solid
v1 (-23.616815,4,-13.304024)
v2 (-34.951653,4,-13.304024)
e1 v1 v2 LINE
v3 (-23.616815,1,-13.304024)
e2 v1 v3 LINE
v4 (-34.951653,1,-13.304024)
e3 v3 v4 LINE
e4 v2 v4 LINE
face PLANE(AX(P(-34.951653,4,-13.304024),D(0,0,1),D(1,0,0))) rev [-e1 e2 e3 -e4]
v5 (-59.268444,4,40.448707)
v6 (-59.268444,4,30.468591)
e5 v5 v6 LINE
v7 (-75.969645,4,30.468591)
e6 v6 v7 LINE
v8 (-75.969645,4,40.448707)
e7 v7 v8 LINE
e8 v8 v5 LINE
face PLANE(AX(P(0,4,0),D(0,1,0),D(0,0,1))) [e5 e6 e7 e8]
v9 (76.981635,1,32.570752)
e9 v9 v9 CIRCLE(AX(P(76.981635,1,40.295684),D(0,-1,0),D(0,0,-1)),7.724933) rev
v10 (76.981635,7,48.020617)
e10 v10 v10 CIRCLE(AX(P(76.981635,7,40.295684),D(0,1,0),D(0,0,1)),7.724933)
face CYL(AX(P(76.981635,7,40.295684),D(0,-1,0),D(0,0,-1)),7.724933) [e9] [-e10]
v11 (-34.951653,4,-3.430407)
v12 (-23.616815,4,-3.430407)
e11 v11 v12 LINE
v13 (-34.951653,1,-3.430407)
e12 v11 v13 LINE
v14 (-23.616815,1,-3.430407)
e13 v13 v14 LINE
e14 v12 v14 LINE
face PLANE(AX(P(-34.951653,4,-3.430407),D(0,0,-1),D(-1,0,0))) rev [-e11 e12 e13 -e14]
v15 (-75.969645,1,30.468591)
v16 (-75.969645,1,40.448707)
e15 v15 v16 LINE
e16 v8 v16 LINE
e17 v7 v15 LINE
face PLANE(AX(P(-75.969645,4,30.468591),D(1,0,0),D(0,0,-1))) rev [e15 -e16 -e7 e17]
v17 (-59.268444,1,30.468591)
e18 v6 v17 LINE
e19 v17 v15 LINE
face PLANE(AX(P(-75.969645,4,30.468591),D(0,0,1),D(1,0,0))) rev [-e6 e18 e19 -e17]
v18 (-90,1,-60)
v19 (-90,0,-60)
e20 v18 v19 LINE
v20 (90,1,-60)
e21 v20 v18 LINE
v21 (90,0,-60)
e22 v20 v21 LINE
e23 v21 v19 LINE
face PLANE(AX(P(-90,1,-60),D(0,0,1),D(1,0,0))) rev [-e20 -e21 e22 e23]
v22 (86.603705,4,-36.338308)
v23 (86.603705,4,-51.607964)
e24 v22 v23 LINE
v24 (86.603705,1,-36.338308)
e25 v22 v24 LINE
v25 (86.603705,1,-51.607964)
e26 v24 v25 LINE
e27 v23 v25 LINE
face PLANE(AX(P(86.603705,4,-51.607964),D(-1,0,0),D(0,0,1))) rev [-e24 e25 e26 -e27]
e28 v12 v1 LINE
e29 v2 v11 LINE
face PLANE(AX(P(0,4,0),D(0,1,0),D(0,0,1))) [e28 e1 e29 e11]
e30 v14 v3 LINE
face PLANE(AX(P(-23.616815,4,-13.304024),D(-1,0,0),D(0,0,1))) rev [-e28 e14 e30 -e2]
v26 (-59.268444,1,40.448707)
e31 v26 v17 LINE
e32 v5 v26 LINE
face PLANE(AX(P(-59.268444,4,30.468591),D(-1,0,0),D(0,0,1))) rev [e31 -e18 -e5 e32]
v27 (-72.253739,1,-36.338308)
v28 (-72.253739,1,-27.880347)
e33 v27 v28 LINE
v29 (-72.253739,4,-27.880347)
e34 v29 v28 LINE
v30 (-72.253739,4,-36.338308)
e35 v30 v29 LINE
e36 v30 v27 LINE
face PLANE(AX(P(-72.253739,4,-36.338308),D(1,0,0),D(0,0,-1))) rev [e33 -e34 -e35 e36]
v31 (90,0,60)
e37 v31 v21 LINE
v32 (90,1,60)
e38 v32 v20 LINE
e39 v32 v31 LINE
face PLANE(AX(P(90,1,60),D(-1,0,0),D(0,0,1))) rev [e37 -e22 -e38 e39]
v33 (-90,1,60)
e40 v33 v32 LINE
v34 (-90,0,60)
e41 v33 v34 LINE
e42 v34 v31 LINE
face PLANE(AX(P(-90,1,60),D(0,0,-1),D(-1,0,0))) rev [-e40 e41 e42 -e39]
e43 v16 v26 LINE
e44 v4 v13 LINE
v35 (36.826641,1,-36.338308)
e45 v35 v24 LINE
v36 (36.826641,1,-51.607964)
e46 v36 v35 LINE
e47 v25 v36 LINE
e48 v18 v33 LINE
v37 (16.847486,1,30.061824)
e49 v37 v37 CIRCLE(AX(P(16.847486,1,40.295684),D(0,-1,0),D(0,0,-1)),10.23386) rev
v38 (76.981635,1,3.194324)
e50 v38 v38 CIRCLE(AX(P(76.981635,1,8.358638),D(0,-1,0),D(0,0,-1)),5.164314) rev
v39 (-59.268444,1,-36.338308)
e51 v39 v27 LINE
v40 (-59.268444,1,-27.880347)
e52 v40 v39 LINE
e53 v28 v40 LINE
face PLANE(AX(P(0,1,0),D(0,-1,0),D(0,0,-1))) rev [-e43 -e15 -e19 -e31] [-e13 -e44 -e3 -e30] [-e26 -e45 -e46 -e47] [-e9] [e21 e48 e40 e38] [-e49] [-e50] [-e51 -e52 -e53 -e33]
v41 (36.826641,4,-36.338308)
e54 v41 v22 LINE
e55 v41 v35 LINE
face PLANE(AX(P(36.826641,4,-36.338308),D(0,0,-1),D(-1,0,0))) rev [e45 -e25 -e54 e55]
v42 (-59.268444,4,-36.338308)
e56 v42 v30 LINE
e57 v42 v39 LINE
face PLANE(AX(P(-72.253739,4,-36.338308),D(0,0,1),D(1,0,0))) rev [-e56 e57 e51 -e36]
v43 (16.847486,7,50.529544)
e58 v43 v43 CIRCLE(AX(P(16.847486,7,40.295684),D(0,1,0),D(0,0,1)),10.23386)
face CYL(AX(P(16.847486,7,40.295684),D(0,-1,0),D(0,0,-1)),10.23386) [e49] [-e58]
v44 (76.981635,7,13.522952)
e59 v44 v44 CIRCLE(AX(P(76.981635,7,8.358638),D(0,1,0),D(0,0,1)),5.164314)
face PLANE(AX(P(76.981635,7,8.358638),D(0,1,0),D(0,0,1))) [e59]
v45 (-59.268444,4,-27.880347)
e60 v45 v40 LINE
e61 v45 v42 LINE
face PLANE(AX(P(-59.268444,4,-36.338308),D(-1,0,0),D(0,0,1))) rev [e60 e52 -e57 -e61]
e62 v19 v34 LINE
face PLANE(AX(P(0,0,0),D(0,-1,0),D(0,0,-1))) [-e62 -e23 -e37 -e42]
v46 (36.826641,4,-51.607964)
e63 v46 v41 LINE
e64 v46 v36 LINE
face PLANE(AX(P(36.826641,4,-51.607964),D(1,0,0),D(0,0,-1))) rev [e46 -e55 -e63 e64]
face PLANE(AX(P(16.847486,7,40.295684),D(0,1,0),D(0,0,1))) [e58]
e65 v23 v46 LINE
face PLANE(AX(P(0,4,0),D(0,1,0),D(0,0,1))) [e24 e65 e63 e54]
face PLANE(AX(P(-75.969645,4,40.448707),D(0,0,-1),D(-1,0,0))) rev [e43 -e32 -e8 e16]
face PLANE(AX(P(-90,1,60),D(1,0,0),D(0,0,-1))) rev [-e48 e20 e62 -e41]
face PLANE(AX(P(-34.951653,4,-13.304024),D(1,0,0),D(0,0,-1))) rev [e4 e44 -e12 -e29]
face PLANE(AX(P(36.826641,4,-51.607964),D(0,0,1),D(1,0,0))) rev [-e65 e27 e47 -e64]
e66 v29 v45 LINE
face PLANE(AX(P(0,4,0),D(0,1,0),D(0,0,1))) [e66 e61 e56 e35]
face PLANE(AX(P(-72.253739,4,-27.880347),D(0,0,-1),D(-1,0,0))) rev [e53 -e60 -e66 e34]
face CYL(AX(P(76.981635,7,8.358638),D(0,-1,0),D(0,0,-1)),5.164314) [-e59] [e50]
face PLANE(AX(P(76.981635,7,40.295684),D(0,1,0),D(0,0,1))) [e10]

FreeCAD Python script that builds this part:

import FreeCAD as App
import Part
import Sketcher

V = App.Vector
Q = App.Units.Quantity


def add_polygon(sketch, points):
    """Adds a closed chain of lines whose ends are joined by coincident constraints."""
    first, n = sketch.GeometryCount, len(points)
    for a, b in zip(points, points[1:] + points[:1]):
        sketch.addGeometry(Part.LineSegment(App.Vector(*a, 0), App.Vector(*b, 0)), False)
    for i in range(n):
        sketch.addConstraint(Sketcher.Constraint("Coincident", first + i, 2, first + (i + 1) % n, 1))

doc = App.newDocument("Part")
params = doc.addObject("Spreadsheet::Sheet", "Params")
for row, (alias, value) in enumerate([
    ("sketch1_width", "180 mm"),
    ("sketch1_height", "120 mm"),
    ("pad1_length", "1 mm"),
    ("pad2_length", "3 mm"),
    ("pad3_length", "6 mm"),
], start=1):
    params.set(f"A{row}", alias)
    params.set(f"B{row}", "=" + value)
    params.setAlias(f"B{row}", alias)

body = doc.addObject("PartDesign::Body", "Body")

# Sketch on XZ plane
sketch1 = body.newObject("Sketcher::SketchObject", "Sketch")
sketch1.AttachmentSupport = (doc.getObject("XZ_Plane"), [""])
sketch1.MapMode = "FlatFace"
add_polygon(sketch1, [(-90, -60), (-90, 60), (90, 60), (90, -60)])  # lines 0-3
sketch1.addConstraint([
    Sketcher.Constraint("Vertical", 0),
    Sketcher.Constraint("Horizontal", 1),
    Sketcher.Constraint("Vertical", 2),
    Sketcher.Constraint("Horizontal", 3),
    Sketcher.Constraint("Symmetric", 0, 2, 2, 2, -1, 1),
    Sketcher.Constraint("DistanceX", 1, 1, 1, 2, Q("180 mm")),
    Sketcher.Constraint("DistanceY", 0, 1, 0, 2, Q("120 mm")),
])
sketch1.setExpression("Constraints[9]", "Params.sketch1_width")
sketch1.setExpression("Constraints[10]", "Params.sketch1_height")
pad1 = body.newObject("PartDesign::Pad", "Pad")
pad1.Profile = sketch1
pad1.setExpression("Length", "Params.pad1_length")
pad1.Reversed = True

# Sketch on XZ plane
sketch2 = body.newObject("Sketcher::SketchObject", "Sketch001")
sketch2.AttachmentSupport = (doc.getObject("XZ_Plane"), [""])
sketch2.MapMode = "FlatFace"
sketch2.AttachmentOffset = App.Placement(V(0, 0, -1), App.Rotation())
add_polygon(sketch2, [(-72, -36), (-72, -28), (-59, -28), (-59, -36)])  # lines 0-3
add_polygon(sketch2, [(-76, 30), (-76, 40), (-59, 40), (-59, 30)])  # lines 4-7
add_polygon(sketch2, [(-35, -13), (-35, -3), (-24, -3), (-24, -13)])  # lines 8-11
add_polygon(sketch2, [(37, -52), (37, -36), (87, -36), (87, -52)])  # lines 12-15
sketch2.addConstraint([
    Sketcher.Constraint("Vertical", 0),
    Sketcher.Constraint("Horizontal", 1),
    Sketcher.Constraint("Vertical", 2),
    Sketcher.Constraint("Horizontal", 3),
    Sketcher.Constraint("Vertical", 4),
    Sketcher.Constraint("Horizontal", 5),
    Sketcher.Constraint("Vertical", 6),
    Sketcher.Constraint("Horizontal", 7),
    Sketcher.Constraint("Vertical", 8),
    Sketcher.Constraint("Horizontal", 9),
    Sketcher.Constraint("Vertical", 10),
    Sketcher.Constraint("Horizontal", 11),
    Sketcher.Constraint("Vertical", 12),
    Sketcher.Constraint("Horizontal", 13),
    Sketcher.Constraint("Vertical", 14),
    Sketcher.Constraint("Horizontal", 15),
    Sketcher.Constraint("Horizontal", 3, 2, 12, 2),
    Sketcher.Constraint("Vertical", 2, 2, 5, 2),
    Sketcher.Constraint("DistanceX", 5, 1, 5, 2, Q("16.701201 mm")),
    Sketcher.Constraint("DistanceY", 0, 1, 0, 2, Q("8.457961 mm")),
    Sketcher.Constraint("DistanceY", 2, 2, 6, 2, Q("66.806899 mm")),
    Sketcher.Constraint("DistanceY", 2, 2, 8, 2, Q("32.907901 mm")),
    Sketcher.Constraint("DistanceX", 1, 1, 1, 2, Q("12.985294 mm")),
    Sketcher.Constraint("DistanceX", 9, 1, 9, 2, Q("11.334838 mm")),
    Sketcher.Constraint("DistanceX", 13, 1, 13, 2, Q("49.777065 mm")),
    Sketcher.Constraint("DistanceY", 4, 1, 4, 2, Q("9.980116 mm")),
    Sketcher.Constraint("DistanceY", 8, 1, 8, 2, Q("9.873617 mm")),
    Sketcher.Constraint("DistanceY", 12, 1, 12, 2, Q("15.269656 mm")),
    Sketcher.Constraint("DistanceX", 0, 2, -1, 1, Q("72.253739 mm")),
    Sketcher.Constraint("DistanceY", -1, 1, 6, 2, Q("30.468591 mm")),
    Sketcher.Constraint("DistanceX", -1, 1, 12, 2, Q("36.826641 mm")),
    Sketcher.Constraint("DistanceX", 1, 2, 8, 2, Q("24.316791 mm")),
])
pad2 = body.newObject("PartDesign::Pad", "Pad001")
pad2.Profile = sketch2
pad2.setExpression("Length", "Params.pad2_length")
pad2.Reversed = True

# Sketch on XZ plane
sketch3 = body.newObject("Sketcher::SketchObject", "Sketch002")
sketch3.AttachmentSupport = (doc.getObject("XZ_Plane"), [""])
sketch3.MapMode = "FlatFace"
sketch3.AttachmentOffset = App.Placement(V(0, 0, -1), App.Rotation())
sketch3.addGeometry([
    Part.Circle(V(77, 8, 0), V(0, 0, 1), 5),
    Part.Circle(V(77, 40, 0), V(0, 0, 1), 8),
    Part.Circle(V(17, 40, 0), V(0, 0, 1), 10),
], False)
sketch3.addConstraint([
    Sketcher.Constraint("Horizontal", 1, 3, 2, 3),
    Sketcher.Constraint("Vertical", 0, 3, 1, 3),
    Sketcher.Constraint("Diameter", 0, Q("10.328628 mm")),
    Sketcher.Constraint("Diameter", 2, Q("20.46772 mm")),
    Sketcher.Constraint("Diameter", 1, Q("15.449866 mm")),
    Sketcher.Constraint("DistanceY", -1, 1, 0, 3, Q("8.358638 mm")),
    Sketcher.Constraint("DistanceX", 2, 3, 1, 3, Q("60.134149 mm")),
    Sketcher.Constraint("DistanceX", -1, 1, 0, 3, Q("76.981635 mm")),
    Sketcher.Constraint("DistanceY", -1, 1, 1, 3, Q("40.295684 mm")),
])
pad3 = body.newObject("PartDesign::Pad", "Pad002")
pad3.Profile = sketch3
pad3.setExpression("Length", "Params.pad3_length")
pad3.Reversed = True

doc.recompute()
